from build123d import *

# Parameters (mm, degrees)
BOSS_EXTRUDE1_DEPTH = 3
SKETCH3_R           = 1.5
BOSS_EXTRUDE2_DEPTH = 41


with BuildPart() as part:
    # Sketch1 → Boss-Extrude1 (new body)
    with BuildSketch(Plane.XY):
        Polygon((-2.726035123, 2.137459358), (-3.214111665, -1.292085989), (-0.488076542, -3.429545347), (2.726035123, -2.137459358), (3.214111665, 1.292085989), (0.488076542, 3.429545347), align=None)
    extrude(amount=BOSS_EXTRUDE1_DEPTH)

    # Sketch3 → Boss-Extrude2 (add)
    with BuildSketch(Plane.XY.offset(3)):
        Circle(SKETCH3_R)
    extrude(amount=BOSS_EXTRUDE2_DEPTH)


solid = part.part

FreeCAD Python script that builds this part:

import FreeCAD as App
import Part
import Sketcher
from FreeCAD import Vector
Q = App.Units.Quantity

doc = App.newDocument("Part")
params = doc.addObject("Spreadsheet::Sheet", "Params")
for row, (alias, value) in enumerate([
    ("pad1_length", "3 mm"),
    ("sketch2_diameter", "3 mm"),
    ("pad2_length", "41 mm"),
], start=1):
    params.set(f"A{row}", alias)
    params.set(f"B{row}", "=" + value)
    params.setAlias(f"B{row}", alias)

body = doc.addObject("PartDesign::Body", "Body")

sketch1 = body.newObject("Sketcher::SketchObject", "Sketch")
sketch1.AttachmentSupport = (doc.getObject("XY_Plane"), [""])
sketch1.MapMode = "FlatFace"
sketch1.addGeometry([
    Part.LineSegment(Vector(-2.726035, 2.137459, 0), Vector(-3.214112, -1.292086, 0)),
    Part.LineSegment(Vector(-3.214112, -1.292086, 0), Vector(-0.488077, -3.429545, 0)),
    Part.LineSegment(Vector(-0.488077, -3.429545, 0), Vector(2.726035, -2.137459, 0)),
    Part.LineSegment(Vector(2.726035, -2.137459, 0), Vector(3.214112, 1.292086, 0)),
    Part.LineSegment(Vector(3.214112, 1.292086, 0), Vector(0.488077, 3.429545, 0)),
    Part.LineSegment(Vector(0.488077, 3.429545, 0), Vector(-2.726035, 2.137459, 0)),
], False)
sketch1.addConstraint([
    Sketcher.Constraint("Coincident", 0, 2, 1, 1),
    Sketcher.Constraint("Coincident", 1, 2, 2, 1),
    Sketcher.Constraint("Coincident", 2, 2, 3, 1),
    Sketcher.Constraint("Coincident", 3, 2, 4, 1),
    Sketcher.Constraint("Coincident", 4, 2, 5, 1),
    Sketcher.Constraint("Coincident", 5, 2, 0, 1),
    Sketcher.Constraint("Symmetric", 0, 2, 3, 2, -1, 1),
    Sketcher.Constraint("Symmetric", 1, 2, 4, 2, -1, 1),
    Sketcher.Constraint("Symmetric", 2, 2, 5, 2, -1, 1),
    Sketcher.Constraint("Equal", 0, 1),
    Sketcher.Constraint("Equal", 1, 2),
    Sketcher.Constraint("Distance", 0, Q("3.464102 mm")),
    Sketcher.Constraint("DistanceX", 0, 2, -1, 1, Q("3.214112 mm")),
    Sketcher.Constraint("DistanceY", 2, 2, -1, 1, Q("2.137459 mm")),
    Sketcher.Constraint("DistanceY", 1, 2, 0, 2, Q("2.137459 mm")),
])
pad1 = body.newObject("PartDesign::Pad", "Pad")
pad1.Profile = sketch1
pad1.setExpression("Length", "Params.pad1_length")

sketch2 = body.newObject("Sketcher::SketchObject", "Sketch001")
sketch2.AttachmentSupport = (doc.getObject("XY_Plane"), [""])
sketch2.MapMode = "FlatFace"
sketch2.AttachmentOffset = App.Placement(Vector(0, 0, 3), App.Rotation())
sketch2.addGeometry(Part.Circle(Vector(0, 0, 0), Vector(0, 0, 1), 1.5), False)
sketch2.addConstraint([
    Sketcher.Constraint("Coincident", 0, 3, -1, 1),
    Sketcher.Constraint("Diameter", 0, Q("3 mm")),
])
sketch2.setExpression("Constraints[1]", "Params.sketch2_diameter")
pad2 = body.newObject("PartDesign::Pad", "Pad001")
pad2.Profile = sketch2
pad2.setExpression("Length", "Params.pad2_length")

doc.recompute()
